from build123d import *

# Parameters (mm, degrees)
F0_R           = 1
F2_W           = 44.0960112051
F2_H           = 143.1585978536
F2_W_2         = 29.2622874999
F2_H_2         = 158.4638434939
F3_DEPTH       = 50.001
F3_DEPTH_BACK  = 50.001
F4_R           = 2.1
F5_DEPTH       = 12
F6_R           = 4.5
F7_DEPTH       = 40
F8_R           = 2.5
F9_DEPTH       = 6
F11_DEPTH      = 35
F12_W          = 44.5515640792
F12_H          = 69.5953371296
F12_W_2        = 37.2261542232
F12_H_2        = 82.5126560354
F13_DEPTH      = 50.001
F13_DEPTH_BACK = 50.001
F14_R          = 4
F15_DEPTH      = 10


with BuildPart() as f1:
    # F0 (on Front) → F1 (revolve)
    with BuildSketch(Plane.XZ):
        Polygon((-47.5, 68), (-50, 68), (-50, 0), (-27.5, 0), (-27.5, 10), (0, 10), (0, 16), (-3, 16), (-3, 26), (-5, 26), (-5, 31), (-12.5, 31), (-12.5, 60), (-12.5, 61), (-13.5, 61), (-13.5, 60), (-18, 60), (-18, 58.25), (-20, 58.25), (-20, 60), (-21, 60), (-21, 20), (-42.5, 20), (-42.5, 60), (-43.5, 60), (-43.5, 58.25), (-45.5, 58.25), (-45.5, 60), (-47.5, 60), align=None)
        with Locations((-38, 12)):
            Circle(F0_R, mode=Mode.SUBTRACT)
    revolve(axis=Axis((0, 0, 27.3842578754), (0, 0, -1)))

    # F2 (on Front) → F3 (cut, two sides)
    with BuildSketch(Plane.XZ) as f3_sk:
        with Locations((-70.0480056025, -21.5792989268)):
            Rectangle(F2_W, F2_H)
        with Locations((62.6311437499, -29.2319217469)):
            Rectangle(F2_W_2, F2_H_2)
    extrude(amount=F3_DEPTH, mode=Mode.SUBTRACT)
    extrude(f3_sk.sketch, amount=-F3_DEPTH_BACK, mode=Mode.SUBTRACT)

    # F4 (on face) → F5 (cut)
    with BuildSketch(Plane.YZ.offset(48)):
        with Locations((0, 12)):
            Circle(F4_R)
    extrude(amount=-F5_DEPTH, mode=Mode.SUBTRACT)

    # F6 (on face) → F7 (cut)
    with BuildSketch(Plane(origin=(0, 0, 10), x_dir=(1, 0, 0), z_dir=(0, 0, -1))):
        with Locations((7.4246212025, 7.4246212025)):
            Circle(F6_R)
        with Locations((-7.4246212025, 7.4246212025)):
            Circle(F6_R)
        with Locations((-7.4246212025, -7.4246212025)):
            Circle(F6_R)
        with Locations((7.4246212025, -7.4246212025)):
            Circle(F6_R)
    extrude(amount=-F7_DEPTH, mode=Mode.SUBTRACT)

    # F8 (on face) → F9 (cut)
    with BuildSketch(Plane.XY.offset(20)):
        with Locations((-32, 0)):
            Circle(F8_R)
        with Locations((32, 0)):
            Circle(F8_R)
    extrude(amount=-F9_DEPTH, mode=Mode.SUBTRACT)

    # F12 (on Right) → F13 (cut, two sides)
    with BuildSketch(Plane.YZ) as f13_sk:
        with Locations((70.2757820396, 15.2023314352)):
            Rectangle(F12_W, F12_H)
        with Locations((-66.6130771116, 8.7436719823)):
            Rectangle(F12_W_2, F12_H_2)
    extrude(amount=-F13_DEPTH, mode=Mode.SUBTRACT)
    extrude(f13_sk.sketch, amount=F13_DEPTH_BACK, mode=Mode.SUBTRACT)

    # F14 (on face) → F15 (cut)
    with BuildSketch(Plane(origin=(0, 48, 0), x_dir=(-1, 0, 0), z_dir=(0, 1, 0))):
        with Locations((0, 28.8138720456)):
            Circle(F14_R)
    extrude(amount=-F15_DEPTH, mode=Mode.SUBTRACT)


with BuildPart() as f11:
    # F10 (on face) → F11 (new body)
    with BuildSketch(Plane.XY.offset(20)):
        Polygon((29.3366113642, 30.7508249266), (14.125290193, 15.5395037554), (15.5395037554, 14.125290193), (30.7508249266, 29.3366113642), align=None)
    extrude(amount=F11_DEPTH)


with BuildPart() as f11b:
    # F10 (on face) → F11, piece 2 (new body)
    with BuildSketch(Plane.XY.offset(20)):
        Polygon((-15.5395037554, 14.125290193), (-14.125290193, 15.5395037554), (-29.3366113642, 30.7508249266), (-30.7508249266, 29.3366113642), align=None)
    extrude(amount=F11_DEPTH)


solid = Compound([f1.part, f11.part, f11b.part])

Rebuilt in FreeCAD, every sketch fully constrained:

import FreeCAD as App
import Part
import Sketcher
Q = App.Units.Quantity


def add_polygon(sketch, points):
    """Adds a closed chain of lines whose ends are joined by coincident constraints."""
    first, n = sketch.GeometryCount, len(points)
    for a, b in zip(points, points[1:] + points[:1]):
        sketch.addGeometry(Part.LineSegment(App.Vector(*a, 0), App.Vector(*b, 0)), False)
    for i in range(n):
        sketch.addConstraint(Sketcher.Constraint("Coincident", first + i, 2, first + (i + 1) % n, 1))

doc = App.newDocument("Part")
params = doc.addObject("Spreadsheet::Sheet", "Params")
for row, (alias, value) in enumerate([
    ("sketch1_diameter", "2 mm"),
    ("sketch1_width", "3 mm"),
    ("sketch1_width2", "2 mm"),
    ("sketch1_width3", "1 mm"),
    ("sketch1_height", "68 mm"),
    ("revolution_angle", "360 deg"),
    ("sketch3_diameter", "4.2 mm"),
    ("pocket2_length", "12 mm"),
    ("sketch4_diameter", "9 mm"),
    ("pocket3_length", "40 mm"),
    ("sketch5_diameter", "5 mm"),
    ("pocket4_length", "6 mm"),
    ("sketch7_diameter", "8 mm"),
    ("pocket6_length", "10 mm"),
    ("sketch8_length", "2 mm"),
    ("pad1_length", "35 mm"),
    ("sketch9_length", "2 mm"),
    ("pad2_length", "35 mm"),
], start=1):
    params.set(f"A{row}", alias)
    params.set(f"B{row}", "=" + value)
    params.setAlias(f"B{row}", alias)

body = doc.addObject("PartDesign::Body", "Body")

# Sketch on XZ plane
sketch1 = body.newObject("Sketcher::SketchObject", "Sketch")
sketch1.AttachmentSupport = (doc.getObject("XZ_Plane"), [""])
sketch1.MapMode = "FlatFace"
add_polygon(sketch1, [(-47.5, 68), (-50, 68), (-50, 0), (-27.5, 0), (-27.5, 10), (0, 10), (0, 16), (-3, 16), (-3, 26), (-5, 26), (-5, 31), (-12.5, 31), (-12.5, 61), (-13.5, 61), (-13.5, 60), (-18, 60), (-18, 58.25), (-20, 58.25), (-20, 60), (-21, 60), (-21, 20), (-42.5, 20), (-42.5, 60), (-43.5, 60), (-43.5, 58.25), (-45.5, 58.25), (-45.5, 60), (-47.5, 60)])  # lines 0-27
sketch1.addGeometry(Part.Circle(App.Vector(-38, 12, 0), App.Vector(0, 0, 1), 1), False)  # 28
sketch1.addConstraint([
    Sketcher.Constraint("Horizontal", 0),
    Sketcher.Constraint("Vertical", 1),
    Sketcher.Constraint("Horizontal", 2),
    Sketcher.Constraint("Vertical", 3),
    Sketcher.Constraint("Horizontal", 4),
    Sketcher.Constraint("Vertical", 5),
    Sketcher.Constraint("Horizontal", 6),
    Sketcher.Constraint("Vertical", 7),
    Sketcher.Constraint("Horizontal", 8),
    Sketcher.Constraint("Vertical", 9),
    Sketcher.Constraint("Horizontal", 10),
    Sketcher.Constraint("Vertical", 11),
    Sketcher.Constraint("Horizontal", 12),
    Sketcher.Constraint("Vertical", 13),
    Sketcher.Constraint("Horizontal", 14),
    Sketcher.Constraint("Vertical", 15),
    Sketcher.Constraint("Horizontal", 16),
    Sketcher.Constraint("Vertical", 17),
    Sketcher.Constraint("Horizontal", 18),
    Sketcher.Constraint("Vertical", 19),
    Sketcher.Constraint("Horizontal", 20),
    Sketcher.Constraint("Vertical", 21),
    Sketcher.Constraint("Horizontal", 22),
    Sketcher.Constraint("Vertical", 23),
    Sketcher.Constraint("Horizontal", 24),
    Sketcher.Constraint("Vertical", 25),
    Sketcher.Constraint("Horizontal", 26),
    Sketcher.Constraint("Vertical", 27),
    Sketcher.Constraint("PointOnObject", 1, 2, -1),
    Sketcher.Constraint("PointOnObject", 4, 2, -2),
    Sketcher.Constraint("Horizontal", 14, 2, 17, 2),
    Sketcher.Constraint("Horizontal", 18, 2, 21, 2),
    Sketcher.Constraint("Horizontal", 16, 2, 23, 2),
    Sketcher.Constraint("Horizontal", 22, 2, 25, 2),
    Sketcher.Constraint("Equal", 8, 16),
    Sketcher.Constraint("Equal", 12, 18),
    Sketcher.Constraint("Equal", 18, 22),
    Sketcher.Constraint("Equal", 16, 24),
    Sketcher.Constraint("Equal", 24, 26),
    Sketcher.Constraint("Equal", 3, 7),
    Sketcher.Constraint("Equal", 22, 13),
    Sketcher.Constraint("Diameter", 28, Q("2 mm")),
    Sketcher.Constraint("DistanceX", 6, 2, 6, 1, Q("3 mm")),
    Sketcher.Constraint("DistanceX", 8, 2, 8, 1, Q("2 mm")),
    Sketcher.Constraint("DistanceX", 12, 2, 12, 1, Q("1 mm")),
    Sketcher.Constraint("DistanceY", 1, 2, 1, 1, Q("68 mm")),
    Sketcher.Constraint("DistanceY", 3, 1, 3, 2, Q("10 mm")),
    Sketcher.Constraint("DistanceY", 5, 1, 5, 2, Q("6 mm")),
    Sketcher.Constraint("DistanceY", 9, 1, 9, 2, Q("5 mm")),
    Sketcher.Constraint("DistanceY", 11, 1, 11, 2, Q("30 mm")),
    Sketcher.Constraint("DistanceY", 19, 2, 19, 1, Q("40 mm")),
    Sketcher.Constraint("DistanceX", 0, 2, 0, 1, Q("2.5 mm")),
    Sketcher.Constraint("DistanceX", 2, 1, 2, 2, Q("22.5 mm")),
    Sketcher.Constraint("DistanceX", 4, 1, 4, 2, Q("27.5 mm")),
    Sketcher.Constraint("DistanceX", 10, 2, 10, 1, Q("7.5 mm")),
    Sketcher.Constraint("DistanceX", 14, 2, 14, 1, Q("4.5 mm")),
    Sketcher.Constraint("DistanceX", 28, 3, -1, 1, Q("38 mm")),
    Sketcher.Constraint("DistanceY", -1, 1, 28, 3, Q("12 mm")),
    Sketcher.Constraint("DistanceY", 15, 2, 15, 1, Q("1.75 mm")),
])
sketch1.setExpression("Constraints[69]", "Params.sketch1_diameter")
sketch1.setExpression("Constraints[70]", "Params.sketch1_width")
sketch1.setExpression("Constraints[71]", "Params.sketch1_width2")
sketch1.setExpression("Constraints[72]", "Params.sketch1_width3")
sketch1.setExpression("Constraints[73]", "Params.sketch1_height")
revolution = body.newObject("PartDesign::Revolution", "Revolution")
revolution.Profile = sketch1
revolution.ReferenceAxis = (sketch1, ["V_Axis"])
revolution.setExpression("Angle", "Params.revolution_angle")

# Sketch on XZ plane
sketch2 = body.newObject("Sketcher::SketchObject", "Sketch001")
sketch2.AttachmentSupport = (doc.getObject("XZ_Plane"), [""])
sketch2.MapMode = "FlatFace"
add_polygon(sketch2, [(-92.096011, 50), (-92.096011, -93.158598), (-48, -93.158598), (-48, 50)])  # lines 0-3
add_polygon(sketch2, [(48, 50), (48, -108.463843), (77.262287, -108.463843), (77.262287, 50)])  # lines 4-7
sketch2.addConstraint([
    Sketcher.Constraint("Vertical", 0),
    Sketcher.Constraint("Horizontal", 1),
    Sketcher.Constraint("Vertical", 2),
    Sketcher.Constraint("Horizontal", 3),
    Sketcher.Constraint("Vertical", 4),
    Sketcher.Constraint("Horizontal", 5),
    Sketcher.Constraint("Vertical", 6),
    Sketcher.Constraint("Horizontal", 7),
    Sketcher.Constraint("Symmetric", 2, 2, 7, 2, -2),
    Sketcher.Constraint("DistanceX", 1, 2, -1, 1, Q("48 mm")),
    Sketcher.Constraint("DistanceY", -1, 1, 2, 2, Q("50 mm")),
    Sketcher.Constraint("DistanceX", 1, 1, 1, 2, Q("44.096011 mm")),
    Sketcher.Constraint("DistanceX", 0, 2, 5, 2, Q("169.358299 mm")),
    Sketcher.Constraint("DistanceY", 0, 2, 0, 1, Q("143.158598 mm")),
    Sketcher.Constraint("DistanceY", 4, 2, 4, 1, Q("158.463843 mm")),
])
pocket1 = body.newObject("PartDesign::Pocket", "Pocket")
pocket1.Profile = sketch2
pocket1.Type = "ThroughAll"
pocket1.Midplane = True

# Sketch on YZ plane
sketch3 = body.newObject("Sketcher::SketchObject", "Sketch002")
sketch3.AttachmentSupport = (doc.getObject("YZ_Plane"), [""])
sketch3.MapMode = "FlatFace"
sketch3.AttachmentOffset = App.Placement(App.Vector(0, 0, 48), App.Rotation())
sketch3.addGeometry(Part.Circle(App.Vector(0, 12, 0), App.Vector(0, 0, 1), 2.1), False)
sketch3.addConstraint([
    Sketcher.Constraint("PointOnObject", 0, 3, -2),
    Sketcher.Constraint("Diameter", 0, Q("4.2 mm")),
    Sketcher.Constraint("DistanceY", -1, 1, 0, 3, Q("12 mm")),
])
sketch3.setExpression("Constraints[1]", "Params.sketch3_diameter")
pocket2 = body.newObject("PartDesign::Pocket", "Pocket001")
pocket2.Profile = sketch3
pocket2.setExpression("Length", "Params.pocket2_length")

# Sketch on XY plane
sketch4 = body.newObject("Sketcher::SketchObject", "Sketch003")
sketch4.AttachmentSupport = (doc.getObject("XY_Plane"), [""])
sketch4.MapMode = "FlatFace"
sketch4.AttachmentOffset = App.Placement(App.Vector(0, 0, 10), App.Rotation())
sketch4.addGeometry([
    Part.Circle(App.Vector(7.424621, -7.424621, 0), App.Vector(0, 0, 1), 4.5),
    Part.Circle(App.Vector(-7.424621, -7.424621, 0), App.Vector(0, 0, 1), 4.5),
    Part.Circle(App.Vector(-7.424621, 7.424621, 0), App.Vector(0, 0, 1), 4.5),
    Part.Circle(App.Vector(7.424621, 7.424621, 0), App.Vector(0, 0, 1), 4.5),
], False)
sketch4.addConstraint([
    Sketcher.Constraint("Equal", 0, 1),
    Sketcher.Constraint("Equal", 1, 2),
    Sketcher.Constraint("Equal", 2, 3),
    Sketcher.Constraint("Symmetric", 0, 3, 2, 3, -1, 1),
    Sketcher.Constraint("Symmetric", 1, 3, 3, 3, -1, 1),
    Sketcher.Constraint("Symmetric", 0, 3, 1, 3, -2),
    Sketcher.Constraint("Diameter", 0, Q("9 mm")),
    Sketcher.Constraint("DistanceX", -1, 1, 0, 3, Q("7.424621 mm")),
    Sketcher.Constraint("DistanceY", 0, 3, -1, 1, Q("7.424621 mm")),
])
sketch4.setExpression("Constraints[6]", "Params.sketch4_diameter")
pocket3 = body.newObject("PartDesign::Pocket", "Pocket002")
pocket3.Profile = sketch4
pocket3.setExpression("Length", "Params.pocket3_length")
pocket3.Reversed = True

# Sketch on XY plane
sketch5 = body.newObject("Sketcher::SketchObject", "Sketch004")
sketch5.AttachmentSupport = (doc.getObject("XY_Plane"), [""])
sketch5.MapMode = "FlatFace"
sketch5.AttachmentOffset = App.Placement(App.Vector(0, 0, 20), App.Rotation())
sketch5.addGeometry([
    Part.Circle(App.Vector(-32, 0, 0), App.Vector(0, 0, 1), 2.5),
    Part.Circle(App.Vector(32, 0, 0), App.Vector(0, 0, 1), 2.5),
], False)
sketch5.addConstraint([
    Sketcher.Constraint("Equal", 0, 1),
    Sketcher.Constraint("Symmetric", 0, 3, 1, 3, -1, 1),
    Sketcher.Constraint("PointOnObject", 0, 3, -1),
    Sketcher.Constraint("Diameter", 0, Q("5 mm")),
    Sketcher.Constraint("DistanceX", 0, 3, -1, 1, Q("32 mm")),
])
sketch5.setExpression("Constraints[3]", "Params.sketch5_diameter")
pocket4 = body.newObject("PartDesign::Pocket", "Pocket003")
pocket4.Profile = sketch5
pocket4.setExpression("Length", "Params.pocket4_length")

# Sketch on YZ plane
sketch6 = body.newObject("Sketcher::SketchObject", "Sketch005")
sketch6.AttachmentSupport = (doc.getObject("YZ_Plane"), [""])
sketch6.MapMode = "FlatFace"
add_polygon(sketch6, [(48, 50), (48, -19.595337), (92.551564, -19.595337), (92.551564, 50)])  # lines 0-3
add_polygon(sketch6, [(-85.226154, 50), (-85.226154, -32.512656), (-48, -32.512656), (-48, 50)])  # lines 4-7
sketch6.addConstraint([
    Sketcher.Constraint("Vertical", 0),
    Sketcher.Constraint("Horizontal", 1),
    Sketcher.Constraint("Vertical", 2),
    Sketcher.Constraint("Horizontal", 3),
    Sketcher.Constraint("Vertical", 4),
    Sketcher.Constraint("Horizontal", 5),
    Sketcher.Constraint("Vertical", 6),
    Sketcher.Constraint("Horizontal", 7),
    Sketcher.Constraint("Symmetric", 3, 2, 6, 2, -2),
    Sketcher.Constraint("DistanceX", -1, 1, 0, 2, Q("48 mm")),
    Sketcher.Constraint("DistanceY", -1, 1, 2, 2, Q("50 mm")),
    Sketcher.Constraint("DistanceX", 1, 1, 1, 2, Q("44.551564 mm")),
    Sketcher.Constraint("DistanceX", 5, 1, 5, 2, Q("37.226154 mm")),
    Sketcher.Constraint("DistanceY", 0, 2, 0, 1, Q("69.595337 mm")),
    Sketcher.Constraint("DistanceY", 4, 2, 4, 1, Q("82.512656 mm")),
])
pocket5 = body.newObject("PartDesign::Pocket", "Pocket004")
pocket5.Profile = sketch6
pocket5.Type = "ThroughAll"
pocket5.Midplane = True

# Sketch on XZ plane
sketch7 = body.newObject("Sketcher::SketchObject", "Sketch006")
sketch7.AttachmentSupport = (doc.getObject("XZ_Plane"), [""])
sketch7.MapMode = "FlatFace"
sketch7.AttachmentOffset = App.Placement(App.Vector(0, 0, -48), App.Rotation())
sketch7.addGeometry(Part.Circle(App.Vector(0, 28.813872, 0), App.Vector(0, 0, 1), 4), False)
sketch7.addConstraint([
    Sketcher.Constraint("PointOnObject", 0, 3, -2),
    Sketcher.Constraint("Diameter", 0, Q("8 mm")),
    Sketcher.Constraint("DistanceY", -1, 1, 0, 3, Q("28.813872 mm")),
])
sketch7.setExpression("Constraints[1]", "Params.sketch7_diameter")
pocket6 = body.newObject("PartDesign::Pocket", "Pocket005")
pocket6.Profile = sketch7
pocket6.setExpression("Length", "Params.pocket6_length")
pocket6.Reversed = True
body2 = doc.addObject("PartDesign::Body", "Body001")

# Sketch on XY plane
sketch8 = body2.newObject("Sketcher::SketchObject", "Sketch007")
sketch8.AttachmentSupport = (doc.getObject("XY_Plane001"), [""])
sketch8.MapMode = "FlatFace"
sketch8.AttachmentOffset = App.Placement(App.Vector(0, 0, 20), App.Rotation())
add_polygon(sketch8, [(29.336611, 30.750825), (14.12529, 15.539504), (15.539504, 14.12529), (30.750825, 29.336611)])  # lines 0-3
sketch8.addConstraint([
    Sketcher.Constraint("Perpendicular", 0, 1),
    Sketcher.Constraint("Perpendicular", 1, 2),
    Sketcher.Constraint("Perpendicular", 2, 3),
    Sketcher.Constraint("Angle", 0, Q("-135 deg")),
    Sketcher.Constraint("Distance", 1, Q("2 mm")),
    Sketcher.Constraint("DistanceX", -1, 1, 0, 2, Q("14.12529 mm")),
    Sketcher.Constraint("DistanceY", -1, 1, 1, 2, Q("14.12529 mm")),
    Sketcher.Constraint("DistanceY", -1, 1, 2, 2, Q("29.336611 mm")),
])
sketch8.setExpression("Constraints[8]", "Params.sketch8_length")
pad1 = body2.newObject("PartDesign::Pad", "Pad")
pad1.Profile = sketch8
pad1.setExpression("Length", "Params.pad1_length")
body3 = doc.addObject("PartDesign::Body", "Body002")

# Sketch on XY plane
sketch9 = body3.newObject("Sketcher::SketchObject", "Sketch008")
sketch9.AttachmentSupport = (doc.getObject("XY_Plane002"), [""])
sketch9.MapMode = "FlatFace"
sketch9.AttachmentOffset = App.Placement(App.Vector(0, 0, 20), App.Rotation())
add_polygon(sketch9, [(-15.539504, 14.12529), (-14.12529, 15.539504), (-29.336611, 30.750825), (-30.750825, 29.336611)])  # lines 0-3
sketch9.addConstraint([
    Sketcher.Constraint("Perpendicular", 0, 1),
    Sketcher.Constraint("Perpendicular", 1, 2),
    Sketcher.Constraint("Perpendicular", 2, 3),
    Sketcher.Constraint("Angle", 0, Q("45 deg")),
    Sketcher.Constraint("Distance", 0, Q("2 mm")),
    Sketcher.Constraint("DistanceX", 0, 2, -1, 1, Q("14.12529 mm")),
    Sketcher.Constraint("DistanceX", 1, 2, -1, 1, Q("29.336611 mm")),
    Sketcher.Constraint("DistanceY", -1, 1, 2, 2, Q("29.336611 mm")),
])
sketch9.setExpression("Constraints[8]", "Params.sketch9_length")
pad2 = body3.newObject("PartDesign::Pad", "Pad001")
pad2.Profile = sketch9
pad2.setExpression("Length", "Params.pad2_length")

doc.recompute()
